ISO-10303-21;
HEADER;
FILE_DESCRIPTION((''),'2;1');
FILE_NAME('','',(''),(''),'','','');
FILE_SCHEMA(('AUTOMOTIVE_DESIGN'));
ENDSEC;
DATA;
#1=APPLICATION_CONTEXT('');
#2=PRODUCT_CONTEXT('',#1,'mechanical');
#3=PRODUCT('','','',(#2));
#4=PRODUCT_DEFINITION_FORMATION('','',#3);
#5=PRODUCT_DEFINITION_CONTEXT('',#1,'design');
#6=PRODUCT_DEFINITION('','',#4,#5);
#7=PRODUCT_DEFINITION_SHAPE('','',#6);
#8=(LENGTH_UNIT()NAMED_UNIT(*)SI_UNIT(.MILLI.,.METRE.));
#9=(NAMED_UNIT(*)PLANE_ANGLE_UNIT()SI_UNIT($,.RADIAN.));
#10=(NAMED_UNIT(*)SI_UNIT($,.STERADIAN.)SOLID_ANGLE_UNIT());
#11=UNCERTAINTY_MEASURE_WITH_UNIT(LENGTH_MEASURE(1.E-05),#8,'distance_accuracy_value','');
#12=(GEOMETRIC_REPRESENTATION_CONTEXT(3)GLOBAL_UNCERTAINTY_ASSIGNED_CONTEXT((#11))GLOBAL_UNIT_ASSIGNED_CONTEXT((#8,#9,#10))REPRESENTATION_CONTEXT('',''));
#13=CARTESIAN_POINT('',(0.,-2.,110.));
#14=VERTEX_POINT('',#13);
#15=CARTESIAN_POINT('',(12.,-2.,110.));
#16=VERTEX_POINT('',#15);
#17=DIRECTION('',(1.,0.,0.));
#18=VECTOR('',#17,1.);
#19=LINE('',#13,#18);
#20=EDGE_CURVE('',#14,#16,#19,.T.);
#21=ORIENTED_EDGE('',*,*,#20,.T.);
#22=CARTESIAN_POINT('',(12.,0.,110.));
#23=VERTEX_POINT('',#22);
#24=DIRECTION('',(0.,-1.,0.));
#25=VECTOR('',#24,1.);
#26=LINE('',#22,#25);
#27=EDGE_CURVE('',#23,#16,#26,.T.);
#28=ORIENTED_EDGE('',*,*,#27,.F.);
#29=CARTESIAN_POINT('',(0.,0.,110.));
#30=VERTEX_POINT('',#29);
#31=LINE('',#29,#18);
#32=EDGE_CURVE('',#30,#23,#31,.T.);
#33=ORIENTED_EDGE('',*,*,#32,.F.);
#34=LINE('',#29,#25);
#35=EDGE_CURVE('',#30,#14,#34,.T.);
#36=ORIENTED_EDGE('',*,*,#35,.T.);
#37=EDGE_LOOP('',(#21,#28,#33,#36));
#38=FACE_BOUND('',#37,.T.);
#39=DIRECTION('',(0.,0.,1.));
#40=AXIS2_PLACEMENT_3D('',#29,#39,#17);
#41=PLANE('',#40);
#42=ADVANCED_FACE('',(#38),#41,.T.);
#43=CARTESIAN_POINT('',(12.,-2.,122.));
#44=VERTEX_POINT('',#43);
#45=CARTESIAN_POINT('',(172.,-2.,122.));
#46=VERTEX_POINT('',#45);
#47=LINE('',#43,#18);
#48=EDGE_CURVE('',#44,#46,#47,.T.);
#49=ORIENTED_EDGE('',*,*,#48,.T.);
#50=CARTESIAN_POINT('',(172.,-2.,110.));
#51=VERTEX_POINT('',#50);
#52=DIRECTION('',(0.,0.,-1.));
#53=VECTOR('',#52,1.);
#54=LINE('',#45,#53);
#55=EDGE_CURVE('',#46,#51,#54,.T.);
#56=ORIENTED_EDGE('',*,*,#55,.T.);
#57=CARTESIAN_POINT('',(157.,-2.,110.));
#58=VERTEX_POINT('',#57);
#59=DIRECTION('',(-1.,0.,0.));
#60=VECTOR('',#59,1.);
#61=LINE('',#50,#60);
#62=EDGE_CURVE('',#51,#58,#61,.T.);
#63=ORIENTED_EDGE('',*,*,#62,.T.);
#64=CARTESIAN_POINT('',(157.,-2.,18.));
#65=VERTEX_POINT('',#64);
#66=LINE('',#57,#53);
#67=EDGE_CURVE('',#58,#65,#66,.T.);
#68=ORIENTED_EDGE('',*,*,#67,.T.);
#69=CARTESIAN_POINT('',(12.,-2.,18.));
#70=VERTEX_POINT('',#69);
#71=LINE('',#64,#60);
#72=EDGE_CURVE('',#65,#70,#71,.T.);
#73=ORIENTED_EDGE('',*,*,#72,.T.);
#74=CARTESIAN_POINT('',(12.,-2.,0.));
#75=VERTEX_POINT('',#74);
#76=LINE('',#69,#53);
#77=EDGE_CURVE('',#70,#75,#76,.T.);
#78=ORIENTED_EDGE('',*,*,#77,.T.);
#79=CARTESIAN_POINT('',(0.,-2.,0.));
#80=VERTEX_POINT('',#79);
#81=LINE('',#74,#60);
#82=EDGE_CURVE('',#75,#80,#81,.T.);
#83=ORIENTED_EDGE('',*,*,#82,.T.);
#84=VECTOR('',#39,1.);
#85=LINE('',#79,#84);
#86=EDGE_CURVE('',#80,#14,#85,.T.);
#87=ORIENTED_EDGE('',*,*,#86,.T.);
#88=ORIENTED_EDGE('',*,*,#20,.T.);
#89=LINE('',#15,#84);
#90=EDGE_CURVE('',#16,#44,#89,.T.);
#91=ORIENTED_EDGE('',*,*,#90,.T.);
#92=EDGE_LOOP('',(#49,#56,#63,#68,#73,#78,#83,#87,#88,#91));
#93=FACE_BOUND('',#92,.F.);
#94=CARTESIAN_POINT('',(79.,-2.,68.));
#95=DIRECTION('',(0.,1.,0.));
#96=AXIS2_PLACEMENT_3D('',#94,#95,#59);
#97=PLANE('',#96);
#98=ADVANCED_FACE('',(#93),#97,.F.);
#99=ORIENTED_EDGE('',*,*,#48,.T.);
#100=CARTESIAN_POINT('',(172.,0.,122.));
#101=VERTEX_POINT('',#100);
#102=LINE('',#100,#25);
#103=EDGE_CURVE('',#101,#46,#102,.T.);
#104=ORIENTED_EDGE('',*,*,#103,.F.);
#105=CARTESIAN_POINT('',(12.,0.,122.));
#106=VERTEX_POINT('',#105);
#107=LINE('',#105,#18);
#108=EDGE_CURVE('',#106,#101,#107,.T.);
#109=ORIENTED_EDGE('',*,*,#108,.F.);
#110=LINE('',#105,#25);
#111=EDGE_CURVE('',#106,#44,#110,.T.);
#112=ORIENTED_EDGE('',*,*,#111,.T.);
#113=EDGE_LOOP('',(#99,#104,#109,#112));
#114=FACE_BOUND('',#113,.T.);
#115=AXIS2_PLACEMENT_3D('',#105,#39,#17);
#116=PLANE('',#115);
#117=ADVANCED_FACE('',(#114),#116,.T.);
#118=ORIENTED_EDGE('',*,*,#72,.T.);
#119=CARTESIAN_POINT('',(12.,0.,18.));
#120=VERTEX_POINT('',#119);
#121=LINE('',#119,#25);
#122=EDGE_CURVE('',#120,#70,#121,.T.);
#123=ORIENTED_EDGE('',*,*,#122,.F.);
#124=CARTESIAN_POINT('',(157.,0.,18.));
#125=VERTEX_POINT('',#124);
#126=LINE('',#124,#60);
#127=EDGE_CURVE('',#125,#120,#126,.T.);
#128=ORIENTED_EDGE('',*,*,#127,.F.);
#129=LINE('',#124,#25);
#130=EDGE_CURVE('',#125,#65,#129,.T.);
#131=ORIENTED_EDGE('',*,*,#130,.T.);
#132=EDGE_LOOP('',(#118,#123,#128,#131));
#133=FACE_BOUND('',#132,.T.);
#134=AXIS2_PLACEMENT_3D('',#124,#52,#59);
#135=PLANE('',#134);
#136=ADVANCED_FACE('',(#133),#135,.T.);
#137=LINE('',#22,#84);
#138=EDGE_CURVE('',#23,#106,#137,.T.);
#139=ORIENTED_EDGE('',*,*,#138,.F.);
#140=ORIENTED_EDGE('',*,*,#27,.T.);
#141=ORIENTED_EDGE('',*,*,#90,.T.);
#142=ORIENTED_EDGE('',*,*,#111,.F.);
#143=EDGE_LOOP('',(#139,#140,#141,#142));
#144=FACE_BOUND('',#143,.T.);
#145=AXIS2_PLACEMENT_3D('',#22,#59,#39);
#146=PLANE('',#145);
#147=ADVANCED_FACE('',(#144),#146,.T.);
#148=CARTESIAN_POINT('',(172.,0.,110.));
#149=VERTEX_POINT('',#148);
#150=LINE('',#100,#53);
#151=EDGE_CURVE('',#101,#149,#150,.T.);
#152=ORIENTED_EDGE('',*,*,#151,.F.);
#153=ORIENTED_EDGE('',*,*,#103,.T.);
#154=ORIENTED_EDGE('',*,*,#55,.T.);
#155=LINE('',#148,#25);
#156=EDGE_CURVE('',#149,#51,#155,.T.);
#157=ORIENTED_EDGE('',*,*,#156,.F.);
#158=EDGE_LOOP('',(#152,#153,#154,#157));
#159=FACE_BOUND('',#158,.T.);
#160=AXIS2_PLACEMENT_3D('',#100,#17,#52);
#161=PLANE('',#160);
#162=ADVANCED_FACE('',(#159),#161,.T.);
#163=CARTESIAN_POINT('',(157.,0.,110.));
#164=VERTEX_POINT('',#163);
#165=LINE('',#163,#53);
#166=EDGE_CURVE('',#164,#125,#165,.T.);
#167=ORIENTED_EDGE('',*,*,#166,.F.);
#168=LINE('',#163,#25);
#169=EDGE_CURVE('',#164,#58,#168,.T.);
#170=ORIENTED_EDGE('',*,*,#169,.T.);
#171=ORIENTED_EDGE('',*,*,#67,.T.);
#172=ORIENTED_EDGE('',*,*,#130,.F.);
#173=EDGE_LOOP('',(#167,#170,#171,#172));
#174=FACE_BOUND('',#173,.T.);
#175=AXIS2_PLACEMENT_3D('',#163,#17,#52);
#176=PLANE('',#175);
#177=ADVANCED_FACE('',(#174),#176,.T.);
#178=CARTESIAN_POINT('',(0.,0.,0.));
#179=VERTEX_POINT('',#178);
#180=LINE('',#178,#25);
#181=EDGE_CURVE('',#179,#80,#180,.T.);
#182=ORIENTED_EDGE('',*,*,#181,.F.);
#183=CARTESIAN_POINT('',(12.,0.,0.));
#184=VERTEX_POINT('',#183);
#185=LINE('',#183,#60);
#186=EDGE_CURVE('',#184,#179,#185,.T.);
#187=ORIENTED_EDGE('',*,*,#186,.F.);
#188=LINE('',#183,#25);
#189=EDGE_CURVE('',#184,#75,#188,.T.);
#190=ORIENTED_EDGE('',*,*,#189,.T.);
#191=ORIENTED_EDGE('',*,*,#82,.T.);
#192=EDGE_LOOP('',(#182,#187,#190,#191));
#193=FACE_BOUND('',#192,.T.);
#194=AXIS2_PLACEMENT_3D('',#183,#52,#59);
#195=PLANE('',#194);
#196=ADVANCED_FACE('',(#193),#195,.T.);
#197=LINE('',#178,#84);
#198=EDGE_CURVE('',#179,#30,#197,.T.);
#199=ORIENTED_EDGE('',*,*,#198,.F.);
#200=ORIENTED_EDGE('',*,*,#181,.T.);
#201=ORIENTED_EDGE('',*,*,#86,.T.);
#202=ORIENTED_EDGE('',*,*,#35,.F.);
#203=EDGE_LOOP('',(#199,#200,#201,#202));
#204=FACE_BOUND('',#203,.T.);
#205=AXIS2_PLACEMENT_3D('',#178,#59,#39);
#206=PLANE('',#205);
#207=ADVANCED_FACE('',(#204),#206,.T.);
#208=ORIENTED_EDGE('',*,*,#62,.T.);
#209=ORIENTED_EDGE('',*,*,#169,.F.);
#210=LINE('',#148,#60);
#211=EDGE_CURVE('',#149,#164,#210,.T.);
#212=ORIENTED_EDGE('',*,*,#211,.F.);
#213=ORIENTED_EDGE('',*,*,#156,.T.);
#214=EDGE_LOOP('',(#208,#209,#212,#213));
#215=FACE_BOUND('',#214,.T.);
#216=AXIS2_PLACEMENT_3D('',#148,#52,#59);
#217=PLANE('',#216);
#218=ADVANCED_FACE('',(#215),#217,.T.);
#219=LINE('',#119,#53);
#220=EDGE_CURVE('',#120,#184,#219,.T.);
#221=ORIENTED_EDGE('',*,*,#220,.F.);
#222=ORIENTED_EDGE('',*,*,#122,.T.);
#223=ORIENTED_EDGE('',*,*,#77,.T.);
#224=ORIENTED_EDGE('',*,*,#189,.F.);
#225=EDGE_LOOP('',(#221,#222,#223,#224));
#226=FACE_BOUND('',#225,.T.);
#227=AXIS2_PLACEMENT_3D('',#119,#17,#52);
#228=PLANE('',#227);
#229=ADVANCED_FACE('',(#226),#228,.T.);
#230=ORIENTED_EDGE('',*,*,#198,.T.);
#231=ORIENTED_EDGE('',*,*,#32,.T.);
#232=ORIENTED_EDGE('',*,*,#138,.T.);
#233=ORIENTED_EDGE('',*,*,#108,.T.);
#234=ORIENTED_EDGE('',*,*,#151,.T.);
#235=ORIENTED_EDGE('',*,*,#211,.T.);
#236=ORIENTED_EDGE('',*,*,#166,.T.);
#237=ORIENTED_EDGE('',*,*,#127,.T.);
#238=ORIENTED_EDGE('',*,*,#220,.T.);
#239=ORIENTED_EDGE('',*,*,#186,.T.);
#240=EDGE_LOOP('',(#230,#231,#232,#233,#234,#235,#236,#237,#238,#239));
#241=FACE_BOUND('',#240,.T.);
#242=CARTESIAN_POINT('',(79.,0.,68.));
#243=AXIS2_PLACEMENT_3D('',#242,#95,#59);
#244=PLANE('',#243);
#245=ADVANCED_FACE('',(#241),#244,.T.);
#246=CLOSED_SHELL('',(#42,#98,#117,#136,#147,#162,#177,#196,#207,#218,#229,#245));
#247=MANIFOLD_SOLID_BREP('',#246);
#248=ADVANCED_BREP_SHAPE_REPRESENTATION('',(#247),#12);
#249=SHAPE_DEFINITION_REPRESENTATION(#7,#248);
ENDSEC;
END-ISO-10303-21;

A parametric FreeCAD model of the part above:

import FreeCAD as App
import Part
import Sketcher

V = App.Vector


def add_polygon(sketch, points):
    """Adds a closed chain of lines whose ends are joined by coincident constraints."""
    first, n = sketch.GeometryCount, len(points)
    for a, b in zip(points, points[1:] + points[:1]):
        sketch.addGeometry(Part.LineSegment(App.Vector(*a, 0), App.Vector(*b, 0)), False)
    for i in range(n):
        sketch.addConstraint(Sketcher.Constraint("Coincident", first + i, 2, first + (i + 1) % n, 1))

doc = App.newDocument("Part")
body = doc.addObject("PartDesign::Body", "Body")

# Sketch on XZ plane
sketch1 = doc.addObject("Sketcher::SketchObject", "Sketch")
body.addObject(sketch1)
sketch1.AttachmentSupport = (doc.XZ_Plane, [""])
sketch1.MapMode = "FlatFace"
add_polygon(sketch1, [(0, 110), (0, 0), (12, 0), (12, 18), (157, 18), (157, 110), (172, 110), (172, 122), (12, 122), (12, 110)])  # lines 0-9
sketch1.addConstraint(Sketcher.Constraint("Vertical", 0))
sketch1.addConstraint(Sketcher.Constraint("Horizontal", 1))
sketch1.addConstraint(Sketcher.Constraint("Vertical", 2))
sketch1.addConstraint(Sketcher.Constraint("Horizontal", 3))
sketch1.addConstraint(Sketcher.Constraint("Vertical", 4))
sketch1.addConstraint(Sketcher.Constraint("Horizontal", 5))
sketch1.addConstraint(Sketcher.Constraint("Vertical", 6))
sketch1.addConstraint(Sketcher.Constraint("Horizontal", 7))
sketch1.addConstraint(Sketcher.Constraint("Vertical", 8))
sketch1.addConstraint(Sketcher.Constraint("Horizontal", 9))
sketch1.addConstraint(Sketcher.Constraint("Coincident", 0, 2, -1, 1))
sketch1.addConstraint(Sketcher.Constraint("Horizontal", 5, 2, 8, 2))
sketch1.addConstraint(Sketcher.Constraint("Vertical", 2, 2, 7, 2))
sketch1.addConstraint(Sketcher.Constraint("Equal", 9, 6))
sketch1.addConstraint(Sketcher.Constraint("DistanceX", 1, 1, 1, 2, 12.0))
sketch1.addConstraint(Sketcher.Constraint("DistanceX", 3, 1, 3, 2, 145.0))
sketch1.addConstraint(Sketcher.Constraint("DistanceX", 5, 1, 5, 2, 15.0))
sketch1.addConstraint(Sketcher.Constraint("DistanceY", 0, 2, 0, 1, 110.0))
sketch1.addConstraint(Sketcher.Constraint("DistanceY", 2, 1, 2, 2, 18.0))
pad1 = doc.addObject("PartDesign::Pad", "Pad")
body.addObject(pad1)
pad1.Profile = sketch1
pad1.Length = 2

doc.recompute()
